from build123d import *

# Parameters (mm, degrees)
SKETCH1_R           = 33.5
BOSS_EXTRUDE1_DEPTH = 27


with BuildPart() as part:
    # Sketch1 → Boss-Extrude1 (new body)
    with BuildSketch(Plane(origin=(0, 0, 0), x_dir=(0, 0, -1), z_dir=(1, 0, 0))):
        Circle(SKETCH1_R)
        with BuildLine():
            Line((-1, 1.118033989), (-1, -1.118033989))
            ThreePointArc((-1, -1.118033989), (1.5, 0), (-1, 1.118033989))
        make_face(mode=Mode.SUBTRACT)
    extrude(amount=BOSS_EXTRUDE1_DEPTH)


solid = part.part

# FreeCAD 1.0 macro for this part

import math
import FreeCAD as App
import Part
import Sketcher
from FreeCAD import Vector
Q = App.Units.Quantity

doc = App.newDocument("Part")
body = doc.addObject("PartDesign::Body", "Body")

# Sketch on YZ plane
sketch1 = body.newObject("Sketcher::SketchObject", "Sketch")
sketch1.AttachmentSupport = (doc.getObject("YZ_Plane"), [""])
sketch1.MapMode = "FlatFace"
sketch1.addGeometry([
    Part.Circle(Vector(0, 0, 0), Vector(0, 0, 1), 33.5),
    Part.LineSegment(Vector(-1.1, 1, 0), Vector(1.1, 1, 0)),
    Part.ArcOfCircle(Part.Circle(Vector(0, 0, 0), Vector(0, 0, 1), 1.5), math.radians(138), math.radians(402)),
], False)
sketch1.addConstraint([
    Sketcher.Constraint("Coincident", 1, 1, 2, 1),
    Sketcher.Constraint("Coincident", 2, 2, 1, 2),
    Sketcher.Constraint("Horizontal", 1),
    Sketcher.Constraint("Coincident", 0, 3, -1, 1),
    Sketcher.Constraint("Coincident", 2, 3, -1, 1),
    Sketcher.Constraint("Diameter", 0, Q("67 mm")),
    Sketcher.Constraint("Radius", 2, Q("1.5 mm")),
    Sketcher.Constraint("DistanceY", -1, 1, 1, 1, Q("1 mm")),
])
pad1 = body.newObject("PartDesign::Pad", "Pad")
pad1.Profile = sketch1
pad1.Length = 27

doc.recompute()
